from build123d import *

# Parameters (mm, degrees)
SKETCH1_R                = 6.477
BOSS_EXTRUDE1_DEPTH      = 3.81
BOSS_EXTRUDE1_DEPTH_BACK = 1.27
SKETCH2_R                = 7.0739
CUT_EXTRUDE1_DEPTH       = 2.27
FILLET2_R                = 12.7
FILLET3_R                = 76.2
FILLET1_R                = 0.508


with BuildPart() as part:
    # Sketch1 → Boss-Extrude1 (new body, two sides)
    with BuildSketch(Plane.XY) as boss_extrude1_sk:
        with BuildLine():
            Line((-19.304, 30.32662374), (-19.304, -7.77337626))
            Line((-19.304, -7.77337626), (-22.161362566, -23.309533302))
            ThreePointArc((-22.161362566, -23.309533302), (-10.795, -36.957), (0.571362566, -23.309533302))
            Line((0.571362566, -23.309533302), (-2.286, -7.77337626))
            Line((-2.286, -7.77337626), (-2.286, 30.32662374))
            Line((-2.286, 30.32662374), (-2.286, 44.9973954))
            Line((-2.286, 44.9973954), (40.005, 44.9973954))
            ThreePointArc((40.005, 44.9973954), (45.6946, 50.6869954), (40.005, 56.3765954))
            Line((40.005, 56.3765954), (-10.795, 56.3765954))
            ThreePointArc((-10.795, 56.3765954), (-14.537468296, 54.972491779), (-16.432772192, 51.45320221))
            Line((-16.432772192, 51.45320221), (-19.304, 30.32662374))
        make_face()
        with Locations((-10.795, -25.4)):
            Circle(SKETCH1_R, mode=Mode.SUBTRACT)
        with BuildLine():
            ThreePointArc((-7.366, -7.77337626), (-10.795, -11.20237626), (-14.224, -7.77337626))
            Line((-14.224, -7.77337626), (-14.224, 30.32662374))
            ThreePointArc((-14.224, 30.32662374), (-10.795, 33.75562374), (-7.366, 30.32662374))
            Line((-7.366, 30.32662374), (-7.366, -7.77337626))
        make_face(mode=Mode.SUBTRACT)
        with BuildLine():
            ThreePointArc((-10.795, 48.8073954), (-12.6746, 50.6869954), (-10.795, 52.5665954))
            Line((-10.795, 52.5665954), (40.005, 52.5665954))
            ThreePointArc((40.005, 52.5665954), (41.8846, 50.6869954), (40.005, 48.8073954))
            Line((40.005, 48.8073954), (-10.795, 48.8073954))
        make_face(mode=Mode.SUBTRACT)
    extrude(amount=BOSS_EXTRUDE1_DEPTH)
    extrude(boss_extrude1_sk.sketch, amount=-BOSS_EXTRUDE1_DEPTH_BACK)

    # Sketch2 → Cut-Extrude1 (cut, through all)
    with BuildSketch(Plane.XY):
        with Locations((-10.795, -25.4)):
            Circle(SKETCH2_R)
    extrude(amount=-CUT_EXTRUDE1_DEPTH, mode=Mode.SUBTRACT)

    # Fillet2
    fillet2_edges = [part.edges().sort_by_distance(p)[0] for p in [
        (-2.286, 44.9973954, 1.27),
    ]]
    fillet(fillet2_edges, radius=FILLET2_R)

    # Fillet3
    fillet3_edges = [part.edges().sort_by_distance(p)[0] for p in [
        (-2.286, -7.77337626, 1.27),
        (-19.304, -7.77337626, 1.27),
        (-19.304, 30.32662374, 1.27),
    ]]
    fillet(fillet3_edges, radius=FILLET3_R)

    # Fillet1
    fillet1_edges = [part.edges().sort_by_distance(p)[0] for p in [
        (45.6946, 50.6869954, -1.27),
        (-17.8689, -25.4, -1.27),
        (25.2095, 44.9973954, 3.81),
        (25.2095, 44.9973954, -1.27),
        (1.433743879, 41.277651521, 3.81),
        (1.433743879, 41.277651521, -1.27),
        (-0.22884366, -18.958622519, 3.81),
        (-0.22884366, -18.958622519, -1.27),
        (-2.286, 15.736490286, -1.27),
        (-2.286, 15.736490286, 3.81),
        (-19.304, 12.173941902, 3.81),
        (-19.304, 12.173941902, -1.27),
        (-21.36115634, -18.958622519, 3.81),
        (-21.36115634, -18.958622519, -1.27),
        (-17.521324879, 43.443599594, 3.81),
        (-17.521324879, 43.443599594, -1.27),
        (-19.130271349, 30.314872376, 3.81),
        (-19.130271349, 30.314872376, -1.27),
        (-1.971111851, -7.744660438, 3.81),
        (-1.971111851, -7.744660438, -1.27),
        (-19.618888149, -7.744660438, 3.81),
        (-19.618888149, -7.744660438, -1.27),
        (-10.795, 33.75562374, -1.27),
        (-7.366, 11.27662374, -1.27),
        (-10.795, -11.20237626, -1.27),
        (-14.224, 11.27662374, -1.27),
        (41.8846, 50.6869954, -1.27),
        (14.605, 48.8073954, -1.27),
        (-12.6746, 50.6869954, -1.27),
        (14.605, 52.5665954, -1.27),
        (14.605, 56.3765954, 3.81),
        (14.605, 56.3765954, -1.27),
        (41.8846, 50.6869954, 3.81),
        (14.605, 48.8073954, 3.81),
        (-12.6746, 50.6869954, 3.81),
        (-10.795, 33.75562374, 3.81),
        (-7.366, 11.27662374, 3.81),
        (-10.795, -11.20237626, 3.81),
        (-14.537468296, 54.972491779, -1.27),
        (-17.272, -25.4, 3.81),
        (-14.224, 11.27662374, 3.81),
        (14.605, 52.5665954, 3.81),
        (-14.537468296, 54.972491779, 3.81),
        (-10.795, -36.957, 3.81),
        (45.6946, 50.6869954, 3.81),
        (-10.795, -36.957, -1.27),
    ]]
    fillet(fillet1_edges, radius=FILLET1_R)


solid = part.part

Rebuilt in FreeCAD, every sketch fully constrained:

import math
import FreeCAD as App
import Part
import Sketcher
Q = App.Units.Quantity


def edges_at(feature, points):
    """Names of the edges that pass closest to the given points."""
    edges = feature.Shape.Edges
    near = lambda p: min(range(len(edges)), key=lambda i: edges[i].distToShape(Part.Vertex(*p))[0])
    return sorted({f"Edge{near(p) + 1}" for p in points})

doc = App.newDocument("Part")
body = doc.addObject("PartDesign::Body", "Body")

sketch1 = body.newObject("Sketcher::SketchObject", "Sketch")
sketch1.AttachmentSupport = (doc.getObject("XY_Plane"), [""])
sketch1.MapMode = "FlatFace"
sketch1.addGeometry([
    Part.LineSegment(App.Vector(-19.304, 30.326624, 0), App.Vector(-19.304, -7.773376, 0)),
    Part.LineSegment(App.Vector(-19.304, -7.773376, 0), App.Vector(-22.161363, -23.309533, 0)),
    Part.ArcOfCircle(Part.Circle(App.Vector(-10.795, -25.4, 0), App.Vector(0, 0, 1), 11.557), math.radians(169.578794), math.radians(370.421206)),
    Part.LineSegment(App.Vector(0.571363, -23.309533, 0), App.Vector(-2.286, -7.773376, 0)),
    Part.LineSegment(App.Vector(-2.286, -7.773376, 0), App.Vector(-2.286, 44.997395, 0)),
    Part.LineSegment(App.Vector(-2.286, 44.997395, 0), App.Vector(40.005, 44.997395, 0)),
    Part.ArcOfCircle(Part.Circle(App.Vector(40.005, 50.686995, 0), App.Vector(0, 0, 1), 5.6896), math.radians(-90), math.radians(90)),
    Part.LineSegment(App.Vector(40.005, 56.376595, 0), App.Vector(-10.795, 56.376595, 0)),
    Part.ArcOfCircle(Part.Circle(App.Vector(-10.795, 50.686995, 0), App.Vector(0, 0, 1), 5.6896), math.radians(90), math.radians(172.26058)),
    Part.LineSegment(App.Vector(-16.432772, 51.453202, 0), App.Vector(-19.304, 30.326624, 0)),
    Part.Circle(App.Vector(-10.795, -25.4, 0), App.Vector(0, 0, 1), 6.477),
    Part.LineSegment(App.Vector(-7.366, 30.326624, 0), App.Vector(-7.366, -7.773376, 0)),
    Part.ArcOfCircle(Part.Circle(App.Vector(-10.795, -7.773376, 0), App.Vector(0, 0, 1), 3.429), math.radians(180), math.radians(360)),
    Part.LineSegment(App.Vector(-14.224, -7.773376, 0), App.Vector(-14.224, 30.326624, 0)),
    Part.ArcOfCircle(Part.Circle(App.Vector(-10.795, 30.326624, 0), App.Vector(0, 0, 1), 3.429), math.radians(0), math.radians(180)),
    Part.LineSegment(App.Vector(40.005, 48.807395, 0), App.Vector(-10.795, 48.807395, 0)),
    Part.ArcOfCircle(Part.Circle(App.Vector(-10.795, 50.686995, 0), App.Vector(0, 0, 1), 1.8796), math.radians(90), math.radians(270)),
    Part.LineSegment(App.Vector(-10.795, 52.566595, 0), App.Vector(40.005, 52.566595, 0)),
    Part.ArcOfCircle(Part.Circle(App.Vector(40.005, 50.686995, 0), App.Vector(0, 0, 1), 1.8796), math.radians(-90), math.radians(90)),
], False)
sketch1.addConstraint([
    Sketcher.Constraint("Coincident", 0, 2, 1, 1),
    Sketcher.Constraint("Tangent", 1, 2, 2, 1),
    Sketcher.Constraint("Tangent", 2, 2, 3, 1),
    Sketcher.Constraint("Coincident", 3, 2, 4, 1),
    Sketcher.Constraint("Coincident", 4, 2, 5, 1),
    Sketcher.Constraint("Tangent", 5, 2, 6, 1),
    Sketcher.Constraint("Tangent", 6, 2, 7, 1),
    Sketcher.Constraint("Tangent", 7, 2, 8, 1),
    Sketcher.Constraint("Tangent", 8, 2, 9, 1),
    Sketcher.Constraint("Coincident", 9, 2, 0, 1),
    Sketcher.Constraint("Tangent", 11, 2, 12, 2),
    Sketcher.Constraint("Tangent", 12, 1, 13, 1),
    Sketcher.Constraint("Tangent", 13, 2, 14, 2),
    Sketcher.Constraint("Tangent", 14, 1, 11, 1),
    Sketcher.Constraint("Tangent", 15, 2, 16, 2),
    Sketcher.Constraint("Tangent", 16, 1, 17, 1),
    Sketcher.Constraint("Tangent", 17, 2, 18, 2),
    Sketcher.Constraint("Tangent", 18, 1, 15, 1),
    Sketcher.Constraint("Vertical", 0),
    Sketcher.Constraint("Vertical", 4),
    Sketcher.Constraint("Horizontal", 5),
    Sketcher.Constraint("Horizontal", 7),
    Sketcher.Constraint("Vertical", 11),
    Sketcher.Constraint("Vertical", 13),
    Sketcher.Constraint("Horizontal", 15),
    Sketcher.Constraint("Horizontal", 17),
    Sketcher.Constraint("Coincident", 10, 3, 2, 3),
    Sketcher.Constraint("Coincident", 16, 3, 8, 3),
    Sketcher.Constraint("Coincident", 18, 3, 6, 3),
    Sketcher.Constraint("Horizontal", 12, 3, 0, 2),
    Sketcher.Constraint("Horizontal", 1, 2, 2, 2),
    Sketcher.Constraint("Horizontal", 0, 2, 3, 2),
    Sketcher.Constraint("Horizontal", 14, 3, 9, 2),
    Sketcher.Constraint("Vertical", 2, 3, 8, 3),
    Sketcher.Constraint("Vertical", 10, 3, 12, 3),
    Sketcher.Constraint("Diameter", 10, Q("0.51 in")),
    Sketcher.Constraint("DistanceX", 7, 2, 7, 1, Q("2 in")),
    Sketcher.Constraint("DistanceY", 0, 2, 0, 1, Q("1.5 in")),
    Sketcher.Constraint("DistanceY", 2, 3, -1, 1, Q("1 in")),
    Sketcher.Constraint("Radius", 2, Q("0.455 in")),
    Sketcher.Constraint("Radius", 6, Q("0.224 in")),
    Sketcher.Constraint("Radius", 12, Q("0.135 in")),
    Sketcher.Constraint("Radius", 16, Q("0.074 in")),
    Sketcher.Constraint("DistanceX", 11, 2, 3, 2, Q("0.2 in")),
    Sketcher.Constraint("DistanceX", 0, 2, -1, 1, Q("0.76 in")),
    Sketcher.Constraint("DistanceY", 4, 1, 4, 2, Q("52.770772 mm")),
    Sketcher.Constraint("Distance", 1, Q("15.796731 mm")),
])
pad1 = body.newObject("PartDesign::Pad", "Pad")
pad1.Profile = sketch1
pad1.Type = "TwoLengths"
pad1.Length = Q("0.15 in")
pad1.Length2 = Q("0.05 in")

sketch2 = body.newObject("Sketcher::SketchObject", "Sketch001")
sketch2.AttachmentSupport = (doc.getObject("XY_Plane"), [""])
sketch2.MapMode = "FlatFace"
sketch2.addGeometry(Part.Circle(App.Vector(-10.795, -25.4, 0), App.Vector(0, 0, 1), 7.0739), False)
sketch2.addConstraint([
    Sketcher.Constraint("Diameter", 0, Q("0.557 in")),
    Sketcher.Constraint("DistanceY", 0, 3, -1, 1, Q("1 in")),
    Sketcher.Constraint("DistanceX", 0, 3, -1, 1, Q("0.425 in")),
])
pocket1 = body.newObject("PartDesign::Pocket", "Pocket")
pocket1.Profile = sketch2
pocket1.Type = "ThroughAll"
doc.recompute()

fillet = body.newObject("PartDesign::Fillet", "Fillet")
fillet.Base = (pocket1, edges_at(pocket1, [(-2.286, 44.997, 1.27)]))
fillet.Radius = Q("0.5 in")
doc.recompute()

fillet2 = body.newObject("PartDesign::Fillet", "Fillet001")
fillet2.Base = (fillet, edges_at(fillet, [(-2.286, -7.773, 1.27), (-19.304, -7.773, 1.27), (-19.304, 30.327, 1.27)]))
fillet2.Radius = Q("3 in")
doc.recompute()

fillet3 = body.newObject("PartDesign::Fillet", "Fillet002")
fillet3.Base = (fillet2, edges_at(fillet2, [
    (45.695, 50.687, -1.27),
    (-17.869, -25.4, -1.27),
    (25.209, 44.997, 3.81),
    (25.209, 44.997, -1.27),
    (1.434, 41.278, 3.81),
    (1.434, 41.278, -1.27),
    (-0.229, -18.959, 3.81),
    (-0.229, -18.959, -1.27),
    (-2.286, 15.736, -1.27),
    (-2.286, 15.736, 3.81),
    (-19.304, 12.174, 3.81),
    (-19.304, 12.174, -1.27),
    (-21.361, -18.959, 3.81),
    (-21.361, -18.959, -1.27),
    (-17.521, 43.444, 3.81),
    (-17.521, 43.444, -1.27),
    (-19.13, 30.315, 3.81),
    (-19.13, 30.315, -1.27),
    (-1.971, -7.745, 3.81),
    (-1.971, -7.745, -1.27),
    (-19.619, -7.745, 3.81),
    (-19.619, -7.745, -1.27),
    (-10.795, 33.756, -1.27),
    (-7.366, 11.277, -1.27),
    (-10.795, -11.202, -1.27),
    (-14.224, 11.277, -1.27),
    (41.885, 50.687, -1.27),
    (14.605, 48.807, -1.27),
    (-12.675, 50.687, -1.27),
    (14.605, 52.567, -1.27),
    (14.605, 56.377, 3.81),
    (14.605, 56.377, -1.27),
    (41.885, 50.687, 3.81),
    (14.605, 48.807, 3.81),
    (-12.675, 50.687, 3.81),
    (-10.795, 33.756, 3.81),
    (-7.366, 11.277, 3.81),
    (-10.795, -11.202, 3.81),
    (-14.537, 54.972, -1.27),
    (-17.272, -25.4, 3.81),
    (-14.224, 11.277, 3.81),
    (14.605, 52.567, 3.81),
    (-14.537, 54.972, 3.81),
    (-10.795, -36.957, 3.81),
    (45.695, 50.687, 3.81),
    (-10.795, -36.957, -1.27),
]))
fillet3.Radius = Q("0.02 in")

doc.recompute()
